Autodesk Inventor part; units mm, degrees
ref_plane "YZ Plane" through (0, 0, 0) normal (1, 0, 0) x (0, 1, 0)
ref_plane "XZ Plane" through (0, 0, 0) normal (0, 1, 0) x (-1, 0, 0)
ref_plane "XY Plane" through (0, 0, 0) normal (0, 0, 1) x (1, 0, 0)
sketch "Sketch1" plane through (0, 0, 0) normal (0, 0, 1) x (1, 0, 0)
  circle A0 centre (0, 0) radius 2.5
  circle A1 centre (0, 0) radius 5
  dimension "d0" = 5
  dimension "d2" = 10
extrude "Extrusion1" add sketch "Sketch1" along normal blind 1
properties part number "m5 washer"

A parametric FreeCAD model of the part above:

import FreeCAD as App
import Part
import Sketcher
from FreeCAD import Vector
Q = App.Units.Quantity

doc = App.newDocument("Part")
body = doc.addObject("PartDesign::Body", "Body")

# Sketch on XY plane
sketch1 = body.newObject("Sketcher::SketchObject", "Sketch")
sketch1.AttachmentSupport = (doc.getObject("XY_Plane"), [""])
sketch1.MapMode = "FlatFace"
sketch1.addGeometry(Part.Circle(Vector(0, 0, 0), Vector(0, 0, 1), 5), False)
sketch1.addGeometry(Part.Circle(Vector(0, 0, 0), Vector(0, 0, 1), 2.5), False)
sketch1.addConstraint(Sketcher.Constraint("Coincident", 0, 3, -1, 1))
sketch1.addConstraint(Sketcher.Constraint("Coincident", 1, 3, -1, 1))
sketch1.addConstraint(Sketcher.Constraint("Diameter", 0, Q("10 mm")))
sketch1.addConstraint(Sketcher.Constraint("Diameter", 1, Q("5 mm")))
pad1 = body.newObject("PartDesign::Pad", "Pad")
pad1.Profile = sketch1
pad1.Length = 1

doc.recompute()
